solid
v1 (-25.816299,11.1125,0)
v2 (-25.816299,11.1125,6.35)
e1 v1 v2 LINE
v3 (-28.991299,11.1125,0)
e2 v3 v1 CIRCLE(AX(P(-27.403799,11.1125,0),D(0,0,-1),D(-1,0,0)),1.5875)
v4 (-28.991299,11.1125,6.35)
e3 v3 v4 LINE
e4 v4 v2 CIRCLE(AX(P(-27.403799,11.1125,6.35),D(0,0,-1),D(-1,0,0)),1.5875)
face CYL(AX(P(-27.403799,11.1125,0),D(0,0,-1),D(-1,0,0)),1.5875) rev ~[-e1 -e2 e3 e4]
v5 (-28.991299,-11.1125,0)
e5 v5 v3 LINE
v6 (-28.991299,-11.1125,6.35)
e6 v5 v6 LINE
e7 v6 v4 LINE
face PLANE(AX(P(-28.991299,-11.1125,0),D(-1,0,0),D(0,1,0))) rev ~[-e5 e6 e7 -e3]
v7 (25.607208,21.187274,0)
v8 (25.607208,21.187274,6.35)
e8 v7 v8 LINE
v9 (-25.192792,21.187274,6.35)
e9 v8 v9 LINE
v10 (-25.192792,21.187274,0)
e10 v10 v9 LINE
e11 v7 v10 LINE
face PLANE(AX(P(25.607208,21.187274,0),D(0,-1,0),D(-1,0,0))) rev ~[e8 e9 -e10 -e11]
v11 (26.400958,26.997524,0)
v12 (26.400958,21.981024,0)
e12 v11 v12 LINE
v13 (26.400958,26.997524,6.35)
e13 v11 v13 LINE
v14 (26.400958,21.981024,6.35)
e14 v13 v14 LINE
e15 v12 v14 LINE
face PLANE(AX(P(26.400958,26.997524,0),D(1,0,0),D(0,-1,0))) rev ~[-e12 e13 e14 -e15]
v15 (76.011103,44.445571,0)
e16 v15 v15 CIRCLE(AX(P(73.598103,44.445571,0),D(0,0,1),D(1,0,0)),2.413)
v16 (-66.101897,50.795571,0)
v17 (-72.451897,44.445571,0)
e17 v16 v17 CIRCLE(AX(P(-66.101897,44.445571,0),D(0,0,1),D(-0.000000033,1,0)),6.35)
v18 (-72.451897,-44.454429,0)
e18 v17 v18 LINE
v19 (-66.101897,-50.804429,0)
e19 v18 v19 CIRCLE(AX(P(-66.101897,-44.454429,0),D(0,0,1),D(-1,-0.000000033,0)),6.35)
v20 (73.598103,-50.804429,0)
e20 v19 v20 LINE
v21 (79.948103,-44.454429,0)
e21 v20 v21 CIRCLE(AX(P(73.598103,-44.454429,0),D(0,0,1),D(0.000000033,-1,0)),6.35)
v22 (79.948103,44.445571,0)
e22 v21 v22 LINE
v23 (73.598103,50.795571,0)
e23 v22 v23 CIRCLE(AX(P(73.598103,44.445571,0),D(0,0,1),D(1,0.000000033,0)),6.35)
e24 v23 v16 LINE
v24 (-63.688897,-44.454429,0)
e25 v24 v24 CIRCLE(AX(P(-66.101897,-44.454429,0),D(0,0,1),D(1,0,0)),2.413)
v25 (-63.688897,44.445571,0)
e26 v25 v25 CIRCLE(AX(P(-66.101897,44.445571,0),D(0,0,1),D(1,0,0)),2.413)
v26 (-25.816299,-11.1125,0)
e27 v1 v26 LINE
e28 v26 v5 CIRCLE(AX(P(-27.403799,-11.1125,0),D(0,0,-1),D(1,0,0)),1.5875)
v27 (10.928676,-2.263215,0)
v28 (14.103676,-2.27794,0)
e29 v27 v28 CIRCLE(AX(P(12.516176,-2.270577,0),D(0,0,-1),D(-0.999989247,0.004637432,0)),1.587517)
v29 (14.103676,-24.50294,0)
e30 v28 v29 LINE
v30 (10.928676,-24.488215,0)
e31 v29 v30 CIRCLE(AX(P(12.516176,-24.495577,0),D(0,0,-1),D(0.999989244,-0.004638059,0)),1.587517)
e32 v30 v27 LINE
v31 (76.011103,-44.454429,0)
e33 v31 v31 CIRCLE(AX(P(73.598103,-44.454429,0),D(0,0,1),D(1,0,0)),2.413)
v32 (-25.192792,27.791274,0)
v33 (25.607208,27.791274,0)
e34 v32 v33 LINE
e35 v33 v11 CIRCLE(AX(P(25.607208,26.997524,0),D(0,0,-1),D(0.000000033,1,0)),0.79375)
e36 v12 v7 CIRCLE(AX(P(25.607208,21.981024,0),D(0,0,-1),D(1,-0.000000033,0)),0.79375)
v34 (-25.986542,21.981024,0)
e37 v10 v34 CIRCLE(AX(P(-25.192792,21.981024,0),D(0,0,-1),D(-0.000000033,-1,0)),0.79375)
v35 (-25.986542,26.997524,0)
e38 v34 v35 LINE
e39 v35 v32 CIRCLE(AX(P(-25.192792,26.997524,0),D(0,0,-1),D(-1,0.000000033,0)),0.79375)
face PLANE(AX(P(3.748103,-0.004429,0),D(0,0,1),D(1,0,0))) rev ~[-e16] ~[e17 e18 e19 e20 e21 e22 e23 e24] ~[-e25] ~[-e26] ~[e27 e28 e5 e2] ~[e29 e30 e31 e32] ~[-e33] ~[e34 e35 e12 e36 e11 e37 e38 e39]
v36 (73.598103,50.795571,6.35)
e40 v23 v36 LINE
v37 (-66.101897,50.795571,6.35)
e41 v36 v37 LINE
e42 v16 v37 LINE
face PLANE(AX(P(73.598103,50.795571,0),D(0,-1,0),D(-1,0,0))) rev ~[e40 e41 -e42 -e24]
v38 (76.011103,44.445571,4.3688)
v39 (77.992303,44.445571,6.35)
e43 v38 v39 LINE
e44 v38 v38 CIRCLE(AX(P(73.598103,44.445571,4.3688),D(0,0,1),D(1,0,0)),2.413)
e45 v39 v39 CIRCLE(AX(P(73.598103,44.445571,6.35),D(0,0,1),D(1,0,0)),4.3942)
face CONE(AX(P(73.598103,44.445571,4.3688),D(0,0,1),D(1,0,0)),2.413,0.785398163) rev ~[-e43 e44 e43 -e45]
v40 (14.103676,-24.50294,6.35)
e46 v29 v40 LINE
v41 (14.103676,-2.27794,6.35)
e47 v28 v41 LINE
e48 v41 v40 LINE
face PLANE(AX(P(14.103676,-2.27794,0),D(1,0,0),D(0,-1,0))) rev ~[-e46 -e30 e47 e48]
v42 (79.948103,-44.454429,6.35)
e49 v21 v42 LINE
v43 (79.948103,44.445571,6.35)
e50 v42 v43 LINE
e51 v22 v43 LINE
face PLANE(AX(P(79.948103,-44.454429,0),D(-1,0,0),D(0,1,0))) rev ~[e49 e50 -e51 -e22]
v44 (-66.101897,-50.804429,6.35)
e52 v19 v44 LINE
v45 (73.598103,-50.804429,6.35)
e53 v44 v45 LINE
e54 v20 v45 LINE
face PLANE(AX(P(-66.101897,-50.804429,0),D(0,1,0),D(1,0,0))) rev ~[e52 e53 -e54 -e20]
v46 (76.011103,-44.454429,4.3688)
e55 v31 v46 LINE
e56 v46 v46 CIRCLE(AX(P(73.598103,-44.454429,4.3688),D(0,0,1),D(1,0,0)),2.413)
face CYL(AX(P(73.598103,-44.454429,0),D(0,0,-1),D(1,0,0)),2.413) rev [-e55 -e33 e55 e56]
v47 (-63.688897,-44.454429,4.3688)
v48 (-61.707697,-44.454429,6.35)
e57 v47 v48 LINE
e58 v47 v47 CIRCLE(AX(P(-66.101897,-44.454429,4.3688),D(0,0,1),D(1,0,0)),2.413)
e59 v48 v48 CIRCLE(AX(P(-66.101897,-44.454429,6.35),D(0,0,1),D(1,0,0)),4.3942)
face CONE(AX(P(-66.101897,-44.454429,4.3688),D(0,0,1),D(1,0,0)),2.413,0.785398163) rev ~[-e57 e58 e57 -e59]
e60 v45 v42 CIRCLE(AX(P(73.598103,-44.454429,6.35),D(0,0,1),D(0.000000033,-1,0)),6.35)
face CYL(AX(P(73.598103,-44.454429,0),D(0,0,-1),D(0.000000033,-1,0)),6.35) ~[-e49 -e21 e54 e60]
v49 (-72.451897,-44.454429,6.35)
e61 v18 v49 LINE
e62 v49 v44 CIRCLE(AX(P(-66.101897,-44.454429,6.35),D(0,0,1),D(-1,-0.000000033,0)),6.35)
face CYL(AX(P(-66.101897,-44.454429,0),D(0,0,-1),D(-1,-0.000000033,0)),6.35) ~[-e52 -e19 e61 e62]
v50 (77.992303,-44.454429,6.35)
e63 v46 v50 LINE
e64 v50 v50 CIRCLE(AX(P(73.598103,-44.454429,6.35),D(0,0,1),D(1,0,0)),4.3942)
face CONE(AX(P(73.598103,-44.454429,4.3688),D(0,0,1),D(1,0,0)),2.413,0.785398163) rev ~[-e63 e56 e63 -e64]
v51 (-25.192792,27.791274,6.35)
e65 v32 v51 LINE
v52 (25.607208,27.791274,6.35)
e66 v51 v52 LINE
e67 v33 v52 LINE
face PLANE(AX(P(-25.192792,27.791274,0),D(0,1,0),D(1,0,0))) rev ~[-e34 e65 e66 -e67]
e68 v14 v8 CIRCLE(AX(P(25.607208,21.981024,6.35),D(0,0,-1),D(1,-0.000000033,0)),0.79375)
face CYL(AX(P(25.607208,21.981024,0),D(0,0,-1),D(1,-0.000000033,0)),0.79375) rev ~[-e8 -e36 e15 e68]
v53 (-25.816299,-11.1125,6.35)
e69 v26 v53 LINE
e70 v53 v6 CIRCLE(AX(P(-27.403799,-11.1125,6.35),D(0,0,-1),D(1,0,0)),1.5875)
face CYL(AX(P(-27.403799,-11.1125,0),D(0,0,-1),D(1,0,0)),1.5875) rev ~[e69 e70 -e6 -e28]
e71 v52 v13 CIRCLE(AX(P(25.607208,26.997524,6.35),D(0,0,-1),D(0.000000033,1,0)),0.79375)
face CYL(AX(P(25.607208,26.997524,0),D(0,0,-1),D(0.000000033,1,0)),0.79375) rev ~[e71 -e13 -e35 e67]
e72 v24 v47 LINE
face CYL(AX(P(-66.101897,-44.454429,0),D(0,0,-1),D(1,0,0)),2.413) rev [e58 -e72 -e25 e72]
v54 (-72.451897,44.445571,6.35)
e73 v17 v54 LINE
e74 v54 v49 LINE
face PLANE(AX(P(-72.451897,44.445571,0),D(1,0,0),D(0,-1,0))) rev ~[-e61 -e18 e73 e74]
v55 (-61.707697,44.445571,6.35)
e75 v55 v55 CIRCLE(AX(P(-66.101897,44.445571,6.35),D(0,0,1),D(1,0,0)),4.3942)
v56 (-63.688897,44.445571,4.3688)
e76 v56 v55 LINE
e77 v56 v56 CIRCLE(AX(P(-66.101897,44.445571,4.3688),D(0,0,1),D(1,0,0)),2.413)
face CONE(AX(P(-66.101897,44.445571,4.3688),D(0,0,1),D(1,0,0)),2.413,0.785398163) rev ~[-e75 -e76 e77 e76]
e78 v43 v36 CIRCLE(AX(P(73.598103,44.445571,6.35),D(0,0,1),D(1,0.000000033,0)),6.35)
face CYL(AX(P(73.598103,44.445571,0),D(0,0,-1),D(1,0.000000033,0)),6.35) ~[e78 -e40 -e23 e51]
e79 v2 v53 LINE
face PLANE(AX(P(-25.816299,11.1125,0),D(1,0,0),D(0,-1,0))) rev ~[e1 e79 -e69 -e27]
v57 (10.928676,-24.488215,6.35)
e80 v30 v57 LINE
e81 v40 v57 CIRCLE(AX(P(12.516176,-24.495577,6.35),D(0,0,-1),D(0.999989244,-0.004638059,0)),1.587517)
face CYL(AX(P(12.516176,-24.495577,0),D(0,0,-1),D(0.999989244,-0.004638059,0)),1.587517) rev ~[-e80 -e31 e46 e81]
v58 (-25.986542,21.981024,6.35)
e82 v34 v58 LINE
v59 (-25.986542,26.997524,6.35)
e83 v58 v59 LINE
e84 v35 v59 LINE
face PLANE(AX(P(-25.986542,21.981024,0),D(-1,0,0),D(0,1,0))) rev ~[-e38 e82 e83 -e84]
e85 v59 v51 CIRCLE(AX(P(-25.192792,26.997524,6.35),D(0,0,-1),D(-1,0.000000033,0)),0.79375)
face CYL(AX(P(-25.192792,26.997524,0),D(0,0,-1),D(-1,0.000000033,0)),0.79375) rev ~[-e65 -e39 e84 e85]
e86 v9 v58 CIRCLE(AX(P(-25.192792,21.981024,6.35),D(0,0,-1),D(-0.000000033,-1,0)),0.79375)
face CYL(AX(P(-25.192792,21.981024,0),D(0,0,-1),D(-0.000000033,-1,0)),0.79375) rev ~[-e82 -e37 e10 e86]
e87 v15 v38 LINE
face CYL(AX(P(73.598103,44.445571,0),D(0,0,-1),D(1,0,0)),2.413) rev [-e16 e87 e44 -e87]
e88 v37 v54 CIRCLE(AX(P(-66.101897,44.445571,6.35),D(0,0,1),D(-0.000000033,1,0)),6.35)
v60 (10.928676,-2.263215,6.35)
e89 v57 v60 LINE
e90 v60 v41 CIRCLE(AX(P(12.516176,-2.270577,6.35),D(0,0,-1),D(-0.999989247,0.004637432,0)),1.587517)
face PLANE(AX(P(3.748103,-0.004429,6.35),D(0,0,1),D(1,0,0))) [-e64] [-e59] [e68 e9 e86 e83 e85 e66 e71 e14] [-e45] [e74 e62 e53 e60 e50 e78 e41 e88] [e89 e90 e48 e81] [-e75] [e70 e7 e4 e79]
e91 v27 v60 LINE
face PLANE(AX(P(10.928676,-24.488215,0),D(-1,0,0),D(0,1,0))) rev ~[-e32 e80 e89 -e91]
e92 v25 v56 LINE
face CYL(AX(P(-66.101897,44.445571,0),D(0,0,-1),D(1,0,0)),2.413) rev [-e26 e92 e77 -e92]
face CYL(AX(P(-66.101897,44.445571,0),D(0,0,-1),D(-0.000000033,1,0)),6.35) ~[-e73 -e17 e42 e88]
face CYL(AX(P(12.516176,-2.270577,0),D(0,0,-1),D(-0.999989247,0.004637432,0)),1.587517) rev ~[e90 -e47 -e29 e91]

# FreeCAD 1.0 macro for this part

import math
import FreeCAD as App
import Part
import Sketcher
Q = App.Units.Quantity


def edges_at(feature, points):
    """Names of the edges that pass closest to the given points."""
    edges = feature.Shape.Edges
    near = lambda p: min(range(len(edges)), key=lambda i: edges[i].distToShape(Part.Vertex(*p))[0])
    return sorted({f"Edge{near(p) + 1}" for p in points})

doc = App.newDocument("Part")
body = doc.addObject("PartDesign::Body", "Body")

# Sketch on XY plane
sketch1 = doc.addObject("Sketcher::SketchObject", "Sketch")
body.addObject(sketch1)
sketch1.AttachmentSupport = (doc.XY_Plane, [""])
sketch1.MapMode = "FlatFace"
sketch1.addGeometry(Part.ArcOfCircle(Part.Circle(App.Vector(-66.101897, -44.454429, 0), App.Vector(0, 0, 1), 6.35), math.radians(-179.999998), math.radians(-90.000002)), False)
sketch1.addGeometry(Part.LineSegment(App.Vector(-66.101897, -50.804429, 0), App.Vector(73.598103, -50.804429, 0)), False)
sketch1.addGeometry(Part.ArcOfCircle(Part.Circle(App.Vector(73.598103, -44.454429, 0), App.Vector(0, 0, 1), 6.35), math.radians(-89.999998), math.radians(-0.000002)), False)
sketch1.addGeometry(Part.LineSegment(App.Vector(79.948103, -44.454429, 0), App.Vector(79.948103, 44.445571, 0)), False)
sketch1.addGeometry(Part.ArcOfCircle(Part.Circle(App.Vector(73.598103, 44.445571, 0), App.Vector(0, 0, 1), 6.35), math.radians(0.000002), math.radians(89.999998)), False)
sketch1.addGeometry(Part.LineSegment(App.Vector(73.598103, 50.795571, 0), App.Vector(-66.101897, 50.795571, 0)), False)
sketch1.addGeometry(Part.ArcOfCircle(Part.Circle(App.Vector(-66.101897, 44.445571, 0), App.Vector(0, 0, 1), 6.35), math.radians(90.000002), math.radians(179.999998)), False)
sketch1.addGeometry(Part.LineSegment(App.Vector(-72.451897, 44.445571, 0), App.Vector(-72.451897, -44.454429, 0)), False)
sketch1.addGeometry(Part.Circle(App.Vector(-66.101897, -44.454429, 0), App.Vector(0, 0, 1), 2.413), False)
sketch1.addGeometry(Part.Circle(App.Vector(73.598103, -44.454429, 0), App.Vector(0, 0, 1), 2.413), False)
sketch1.addGeometry(Part.LineSegment(App.Vector(10.928676, -24.488215, 0), App.Vector(10.928676, -2.263215, 0)), False)
sketch1.addGeometry(Part.ArcOfCircle(Part.Circle(App.Vector(12.516176, -2.270577, 0), App.Vector(0, 0, 1), 1.587517), math.radians(-0.265742), math.radians(179.734294)), False)
sketch1.addGeometry(Part.LineSegment(App.Vector(14.103676, -2.27794, 0), App.Vector(14.103676, -24.50294, 0)), False)
sketch1.addGeometry(Part.ArcOfCircle(Part.Circle(App.Vector(12.516176, -24.495577, 0), App.Vector(0, 0, 1), 1.587517), math.radians(179.734294), math.radians(359.734258)), False)
sketch1.addGeometry(Part.LineSegment(App.Vector(-28.991299, -11.1125, 0), App.Vector(-28.991299, 11.1125, 0)), False)
sketch1.addGeometry(Part.ArcOfCircle(Part.Circle(App.Vector(-27.403799, 11.1125, 0), App.Vector(0, 0, 1), 1.5875), math.radians(0), math.radians(180)), False)
sketch1.addGeometry(Part.LineSegment(App.Vector(-25.816299, 11.1125, 0), App.Vector(-25.816299, -11.1125, 0)), False)
sketch1.addGeometry(Part.ArcOfCircle(Part.Circle(App.Vector(-27.403799, -11.1125, 0), App.Vector(0, 0, 1), 1.5875), math.radians(180), math.radians(360)), False)
sketch1.addGeometry(Part.Circle(App.Vector(-66.101897, 44.445571, 0), App.Vector(0, 0, 1), 2.413), False)
sketch1.addGeometry(Part.LineSegment(App.Vector(-25.986542, 21.981024, 0), App.Vector(-25.986542, 26.997524, 0)), False)
sketch1.addGeometry(Part.ArcOfCircle(Part.Circle(App.Vector(-25.192792, 26.997524, 0), App.Vector(0, 0, 1), 0.79375), math.radians(90.000002), math.radians(179.999998)), False)
sketch1.addGeometry(Part.LineSegment(App.Vector(-25.192792, 27.791274, 0), App.Vector(25.607208, 27.791274, 0)), False)
sketch1.addGeometry(Part.ArcOfCircle(Part.Circle(App.Vector(25.607208, 26.997524, 0), App.Vector(0, 0, 1), 0.79375), math.radians(0.000002), math.radians(89.999998)), False)
sketch1.addGeometry(Part.LineSegment(App.Vector(26.400958, 26.997524, 0), App.Vector(26.400958, 21.981024, 0)), False)
sketch1.addGeometry(Part.ArcOfCircle(Part.Circle(App.Vector(25.607208, 21.981024, 0), App.Vector(0, 0, 1), 0.79375), math.radians(-89.999998), math.radians(-0.000002)), False)
sketch1.addGeometry(Part.LineSegment(App.Vector(25.607208, 21.187274, 0), App.Vector(-25.192792, 21.187274, 0)), False)
sketch1.addGeometry(Part.ArcOfCircle(Part.Circle(App.Vector(-25.192792, 21.981024, 0), App.Vector(0, 0, 1), 0.79375), math.radians(-179.999998), math.radians(-90.000002)), False)
sketch1.addGeometry(Part.Circle(App.Vector(73.598103, 44.445571, 0), App.Vector(0, 0, 1), 2.413), False)
sketch1.addConstraint(Sketcher.Constraint("Tangent", 0, 2, 1, 1))
sketch1.addConstraint(Sketcher.Constraint("Tangent", 1, 2, 2, 1))
sketch1.addConstraint(Sketcher.Constraint("Tangent", 2, 2, 3, 1))
sketch1.addConstraint(Sketcher.Constraint("Tangent", 3, 2, 4, 1))
sketch1.addConstraint(Sketcher.Constraint("Tangent", 4, 2, 5, 1))
sketch1.addConstraint(Sketcher.Constraint("Tangent", 5, 2, 6, 1))
sketch1.addConstraint(Sketcher.Constraint("Tangent", 6, 2, 7, 1))
sketch1.addConstraint(Sketcher.Constraint("Tangent", 7, 2, 0, 1))
sketch1.addConstraint(Sketcher.Constraint("Coincident", 10, 2, 11, 2))
sketch1.addConstraint(Sketcher.Constraint("Coincident", 11, 1, 12, 1))
sketch1.addConstraint(Sketcher.Constraint("Coincident", 12, 2, 13, 2))
sketch1.addConstraint(Sketcher.Constraint("Coincident", 13, 1, 10, 1))
sketch1.addConstraint(Sketcher.Constraint("Tangent", 14, 2, 15, 2))
sketch1.addConstraint(Sketcher.Constraint("Tangent", 15, 1, 16, 1))
sketch1.addConstraint(Sketcher.Constraint("Tangent", 16, 2, 17, 2))
sketch1.addConstraint(Sketcher.Constraint("Tangent", 17, 1, 14, 1))
sketch1.addConstraint(Sketcher.Constraint("Tangent", 19, 2, 20, 2))
sketch1.addConstraint(Sketcher.Constraint("Tangent", 20, 1, 21, 1))
sketch1.addConstraint(Sketcher.Constraint("Tangent", 21, 2, 22, 2))
sketch1.addConstraint(Sketcher.Constraint("Tangent", 22, 1, 23, 1))
sketch1.addConstraint(Sketcher.Constraint("Tangent", 23, 2, 24, 2))
sketch1.addConstraint(Sketcher.Constraint("Tangent", 24, 1, 25, 1))
sketch1.addConstraint(Sketcher.Constraint("Tangent", 25, 2, 26, 2))
sketch1.addConstraint(Sketcher.Constraint("Tangent", 26, 1, 19, 1))
sketch1.addConstraint(Sketcher.Constraint("Horizontal", 1))
sketch1.addConstraint(Sketcher.Constraint("Vertical", 3))
sketch1.addConstraint(Sketcher.Constraint("Horizontal", 5))
sketch1.addConstraint(Sketcher.Constraint("Vertical", 7))
sketch1.addConstraint(Sketcher.Constraint("Vertical", 10))
sketch1.addConstraint(Sketcher.Constraint("Vertical", 12))
sketch1.addConstraint(Sketcher.Constraint("Vertical", 14))
sketch1.addConstraint(Sketcher.Constraint("Vertical", 16))
sketch1.addConstraint(Sketcher.Constraint("Vertical", 19))
sketch1.addConstraint(Sketcher.Constraint("Horizontal", 21))
sketch1.addConstraint(Sketcher.Constraint("Vertical", 23))
sketch1.addConstraint(Sketcher.Constraint("Horizontal", 25))
sketch1.addConstraint(Sketcher.Constraint("Coincident", 8, 3, 0, 3))
sketch1.addConstraint(Sketcher.Constraint("Coincident", 9, 3, 2, 3))
sketch1.addConstraint(Sketcher.Constraint("Coincident", 18, 3, 6, 3))
sketch1.addConstraint(Sketcher.Constraint("Coincident", 27, 3, 4, 3))
sketch1.addConstraint(Sketcher.Constraint("Equal", 0, 2))
sketch1.addConstraint(Sketcher.Constraint("Equal", 2, 4))
sketch1.addConstraint(Sketcher.Constraint("Equal", 4, 6))
sketch1.addConstraint(Sketcher.Constraint("Equal", 8, 9))
sketch1.addConstraint(Sketcher.Constraint("Equal", 11, 13))
sketch1.addConstraint(Sketcher.Constraint("Equal", 9, 18))
sketch1.addConstraint(Sketcher.Constraint("Equal", 20, 22))
sketch1.addConstraint(Sketcher.Constraint("Equal", 22, 24))
sketch1.addConstraint(Sketcher.Constraint("Equal", 24, 26))
sketch1.addConstraint(Sketcher.Constraint("Equal", 18, 27))
sketch1.addConstraint(Sketcher.Constraint("Vertical", 11, 3, 13, 3))
sketch1.addConstraint(Sketcher.Constraint("Equal", 12, 14))
sketch1.addConstraint(Sketcher.Constraint("Diameter", 8, Q("0.19 in")))
sketch1.addConstraint(Sketcher.Constraint("DistanceX", 21, 1, 21, 2, Q("2 in")))
sketch1.addConstraint(Sketcher.Constraint("Radius", 0, Q("0.25 in")))
sketch1.addConstraint(Sketcher.Constraint("DistanceX", 1, 1, 1, 2, Q("5.5 in")))
sketch1.addConstraint(Sketcher.Constraint("DistanceY", 3, 1, 3, 2, Q("3.5 in")))
sketch1.addConstraint(Sketcher.Constraint("Radius", 15, Q("0.0625 in")))
sketch1.addConstraint(Sketcher.Constraint("Radius", 20, Q("0.03125 in")))
sketch1.addConstraint(Sketcher.Constraint("DistanceY", 10, 1, 10, 2, Q("0.875 in")))
sketch1.addConstraint(Sketcher.Constraint("DistanceY", 24, 1, 21, 2, Q("0.26 in")))
sketch1.addConstraint(Sketcher.Constraint("DistanceY", -1, 1, 15, 3, Q("0.4375 in")))
sketch1.addConstraint(Sketcher.Constraint("DistanceX", 10, 2, 11, 3, Q("0.0625 in")))
sketch1.addConstraint(Sketcher.Constraint("DistanceX", 11, 3, 11, 1, Q("0.0625 in")))
sketch1.addConstraint(Sketcher.Constraint("DistanceX", 15, 3, -1, 1, 27.403799))
sketch1.addConstraint(Sketcher.Constraint("DistanceY", 11, 3, 20, 3, 29.268101))
sketch1.addConstraint(Sketcher.Constraint("DistanceX", 7, 2, 17, 3, 45.048098))
sketch1.addConstraint(Sketcher.Constraint("DistanceY", 0, 3, -1, 1, 44.454429))
sketch1.addConstraint(Sketcher.Constraint("DistanceX", 20, 3, -1, 1, 25.192792))
sketch1.addConstraint(Sketcher.Constraint("DistanceY", 11, 1, -1, 1, 2.27794))
sketch1.addConstraint(Sketcher.Constraint("DistanceY", 2, 3, 11, 3, 42.183852))
sketch1.addConstraint(Sketcher.Constraint("DistanceX", 11, 3, 22, 3, 13.091032))
pad1 = doc.addObject("PartDesign::Pad", "Pad")
body.addObject(pad1)
pad1.Profile = sketch1
pad1.Length = Q("0.25 in")
doc.recompute()

chamfer = doc.addObject("PartDesign::Chamfer", "Chamfer")
body.addObject(chamfer)
chamfer.Base = (pad1, edges_at(pad1, [
    (-68.515, -44.454, 6.35),
    (71.185, -44.454, 6.35),
    (71.185, 44.446, 6.35),
    (-68.515, 44.446, 6.35),
]))
chamfer.Size = Q("0.078 in")

doc.recompute()
